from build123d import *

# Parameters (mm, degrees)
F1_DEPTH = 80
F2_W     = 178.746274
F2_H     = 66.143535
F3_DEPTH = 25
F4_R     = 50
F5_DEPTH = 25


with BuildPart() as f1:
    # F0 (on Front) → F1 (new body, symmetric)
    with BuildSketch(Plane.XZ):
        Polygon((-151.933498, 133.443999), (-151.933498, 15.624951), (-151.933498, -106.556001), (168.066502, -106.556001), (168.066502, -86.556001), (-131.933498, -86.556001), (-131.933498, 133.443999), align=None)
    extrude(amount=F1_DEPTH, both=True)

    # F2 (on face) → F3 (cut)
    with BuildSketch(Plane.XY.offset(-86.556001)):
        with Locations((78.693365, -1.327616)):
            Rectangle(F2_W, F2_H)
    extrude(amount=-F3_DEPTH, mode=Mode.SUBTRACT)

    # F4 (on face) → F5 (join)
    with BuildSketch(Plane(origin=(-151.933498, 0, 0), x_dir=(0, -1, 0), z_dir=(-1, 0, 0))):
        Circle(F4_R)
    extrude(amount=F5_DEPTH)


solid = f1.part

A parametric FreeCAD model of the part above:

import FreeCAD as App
import Part
import Sketcher
from FreeCAD import Vector
Q = App.Units.Quantity

doc = App.newDocument("Part")
params = doc.addObject("Spreadsheet::Sheet", "Params")
for row, (alias, value) in enumerate([
    ("sketch1_width", "320 mm"),
    ("sketch1_width2", "300 mm"),
    ("sketch1_height", "240 mm"),
    ("pad1_length", "160 mm"),
    ("pocket1_length", "25 mm"),
    ("sketch3_diameter", "100 mm"),
    ("pad2_length", "25 mm"),
], start=1):
    params.set(f"A{row}", alias)
    params.set(f"B{row}", "=" + value)
    params.setAlias(f"B{row}", alias)

body = doc.addObject("PartDesign::Body", "Body")

sketch1 = body.newObject("Sketcher::SketchObject", "Sketch")
sketch1.AttachmentSupport = (doc.getObject("XZ_Plane"), [""])
sketch1.MapMode = "FlatFace"
sketch1.addGeometry(Part.LineSegment(Vector(-151.933498, 133.443999, 0), Vector(-151.933498, -106.556001, 0)), False)
sketch1.addGeometry(Part.LineSegment(Vector(-151.933498, -106.556001, 0), Vector(168.066502, -106.556001, 0)), False)
sketch1.addGeometry(Part.LineSegment(Vector(168.066502, -106.556001, 0), Vector(168.066502, -86.556001, 0)), False)
sketch1.addGeometry(Part.LineSegment(Vector(168.066502, -86.556001, 0), Vector(-131.933498, -86.556001, 0)), False)
sketch1.addGeometry(Part.LineSegment(Vector(-131.933498, -86.556001, 0), Vector(-131.933498, 133.443999, 0)), False)
sketch1.addGeometry(Part.LineSegment(Vector(-131.933498, 133.443999, 0), Vector(-151.933498, 133.443999, 0)), False)
sketch1.addConstraint(Sketcher.Constraint("Coincident", 0, 2, 1, 1))
sketch1.addConstraint(Sketcher.Constraint("Coincident", 1, 2, 2, 1))
sketch1.addConstraint(Sketcher.Constraint("Coincident", 2, 2, 3, 1))
sketch1.addConstraint(Sketcher.Constraint("Coincident", 3, 2, 4, 1))
sketch1.addConstraint(Sketcher.Constraint("Coincident", 4, 2, 5, 1))
sketch1.addConstraint(Sketcher.Constraint("Coincident", 5, 2, 0, 1))
sketch1.addConstraint(Sketcher.Constraint("Vertical", 0))
sketch1.addConstraint(Sketcher.Constraint("Horizontal", 1))
sketch1.addConstraint(Sketcher.Constraint("Vertical", 2))
sketch1.addConstraint(Sketcher.Constraint("Horizontal", 3))
sketch1.addConstraint(Sketcher.Constraint("Vertical", 4))
sketch1.addConstraint(Sketcher.Constraint("Horizontal", 5))
sketch1.addConstraint(Sketcher.Constraint("Equal", 5, 2))
sketch1.addConstraint(Sketcher.Constraint("DistanceX", 1, 1, 1, 2, Q("320 mm")))
sketch1.addConstraint(Sketcher.Constraint("DistanceX", 3, 2, 3, 1, Q("300 mm")))
sketch1.addConstraint(Sketcher.Constraint("DistanceY", 0, 2, 0, 1, Q("240 mm")))
sketch1.addConstraint(Sketcher.Constraint("DistanceY", 0, 2, -1, 1, Q("106.556001 mm")))
sketch1.addConstraint(Sketcher.Constraint("DistanceX", 0, 2, -1, 1, Q("151.933498 mm")))
sketch1.setExpression("Constraints[13]", "Params.sketch1_width")
sketch1.setExpression("Constraints[14]", "Params.sketch1_width2")
sketch1.setExpression("Constraints[15]", "Params.sketch1_height")
pad1 = body.newObject("PartDesign::Pad", "Pad")
pad1.Profile = sketch1
pad1.setExpression("Length", "Params.pad1_length")
pad1.Midplane = True

sketch2 = body.newObject("Sketcher::SketchObject", "Sketch001")
sketch2.AttachmentSupport = (doc.getObject("XY_Plane"), [""])
sketch2.MapMode = "FlatFace"
sketch2.AttachmentOffset = App.Placement(Vector(0, 0, -86.556001), App.Rotation())
sketch2.addGeometry(Part.LineSegment(Vector(-10.679772, 31.744152, 0), Vector(-10.679772, -34.399383, 0)), False)
sketch2.addGeometry(Part.LineSegment(Vector(-10.679772, -34.399383, 0), Vector(168.066502, -34.399383, 0)), False)
sketch2.addGeometry(Part.LineSegment(Vector(168.066502, -34.399383, 0), Vector(168.066502, 31.744152, 0)), False)
sketch2.addGeometry(Part.LineSegment(Vector(168.066502, 31.744152, 0), Vector(-10.679772, 31.744152, 0)), False)
sketch2.addConstraint(Sketcher.Constraint("Coincident", 0, 2, 1, 1))
sketch2.addConstraint(Sketcher.Constraint("Coincident", 1, 2, 2, 1))
sketch2.addConstraint(Sketcher.Constraint("Coincident", 2, 2, 3, 1))
sketch2.addConstraint(Sketcher.Constraint("Coincident", 3, 2, 0, 1))
sketch2.addConstraint(Sketcher.Constraint("Vertical", 0))
sketch2.addConstraint(Sketcher.Constraint("Horizontal", 1))
sketch2.addConstraint(Sketcher.Constraint("Vertical", 2))
sketch2.addConstraint(Sketcher.Constraint("Horizontal", 3))
sketch2.addConstraint(Sketcher.Constraint("DistanceX", 1, 1, 1, 2, Q("178.746274 mm")))
sketch2.addConstraint(Sketcher.Constraint("DistanceY", 0, 2, 0, 1, Q("66.143535 mm")))
sketch2.addConstraint(Sketcher.Constraint("DistanceY", -1, 1, 2, 2, Q("31.744152 mm")))
sketch2.addConstraint(Sketcher.Constraint("DistanceX", 0, 2, -1, 1, Q("10.679772 mm")))
pocket1 = body.newObject("PartDesign::Pocket", "Pocket")
pocket1.Profile = sketch2
pocket1.setExpression("Length", "Params.pocket1_length")

sketch3 = body.newObject("Sketcher::SketchObject", "Sketch002")
sketch3.AttachmentSupport = (doc.getObject("YZ_Plane"), [""])
sketch3.MapMode = "FlatFace"
sketch3.AttachmentOffset = App.Placement(Vector(0, 0, -151.933498), App.Rotation())
sketch3.addGeometry(Part.Circle(Vector(0, 0, 0), Vector(0, 0, 1), 50), False)
sketch3.addConstraint(Sketcher.Constraint("Coincident", 0, 3, -1, 1))
sketch3.addConstraint(Sketcher.Constraint("Diameter", 0, Q("100 mm")))
sketch3.setExpression("Constraints[1]", "Params.sketch3_diameter")
pad2 = body.newObject("PartDesign::Pad", "Pad001")
pad2.Profile = sketch3
pad2.setExpression("Length", "Params.pad2_length")
pad2.Reversed = True

doc.recompute()
